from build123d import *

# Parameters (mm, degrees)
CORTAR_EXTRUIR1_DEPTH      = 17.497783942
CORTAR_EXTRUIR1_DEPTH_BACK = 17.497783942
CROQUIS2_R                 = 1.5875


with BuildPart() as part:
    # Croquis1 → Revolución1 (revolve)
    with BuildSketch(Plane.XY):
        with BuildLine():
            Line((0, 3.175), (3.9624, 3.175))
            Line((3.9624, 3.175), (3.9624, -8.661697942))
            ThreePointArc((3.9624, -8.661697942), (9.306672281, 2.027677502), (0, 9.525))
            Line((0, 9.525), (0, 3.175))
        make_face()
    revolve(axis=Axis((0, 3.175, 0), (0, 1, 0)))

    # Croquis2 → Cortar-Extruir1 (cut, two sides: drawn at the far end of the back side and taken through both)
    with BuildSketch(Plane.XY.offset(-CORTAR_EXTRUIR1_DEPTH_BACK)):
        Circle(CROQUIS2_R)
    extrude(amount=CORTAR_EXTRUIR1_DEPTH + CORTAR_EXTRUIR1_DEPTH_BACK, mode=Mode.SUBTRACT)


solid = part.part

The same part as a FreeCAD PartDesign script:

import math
import FreeCAD as App
import Part
import Sketcher
from FreeCAD import Vector
Q = App.Units.Quantity

doc = App.newDocument("Part")
body = doc.addObject("PartDesign::Body", "Body")

sketch1 = body.newObject("Sketcher::SketchObject", "Sketch")
sketch1.AttachmentSupport = (doc.getObject("XY_Plane"), [""])
sketch1.MapMode = "FlatFace"
sketch1.addGeometry([
    Part.LineSegment(Vector(0, 3.2, 0), Vector(4, 3.2, 0)),
    Part.LineSegment(Vector(4, 3.2, 0), Vector(4, -8.7, 0)),
    Part.ArcOfCircle(Part.Circle(Vector(0, 0, 0), Vector(0, 0, 1), 9.5), math.radians(-65), math.radians(90)),
    Part.LineSegment(Vector(0, 9.5, 0), Vector(0, 3.2, 0)),
], False)
sketch1.addConstraint([
    Sketcher.Constraint("Coincident", 0, 2, 1, 1),
    Sketcher.Constraint("Coincident", 1, 2, 2, 1),
    Sketcher.Constraint("Coincident", 2, 2, 3, 1),
    Sketcher.Constraint("Coincident", 3, 2, 0, 1),
    Sketcher.Constraint("Horizontal", 0),
    Sketcher.Constraint("Vertical", 1),
    Sketcher.Constraint("Vertical", 3),
    Sketcher.Constraint("Coincident", 2, 3, -1, 1),
    Sketcher.Constraint("PointOnObject", 2, 2, -2),
    Sketcher.Constraint("Radius", 2, Q("0.375 in")),
    Sketcher.Constraint("DistanceY", 3, 2, 3, 1, Q("0.25 in")),
    Sketcher.Constraint("DistanceX", 0, 1, 0, 2, Q("0.156 in")),
])
revolution = body.newObject("PartDesign::Revolution", "Revolution")
revolution.Profile = sketch1
revolution.ReferenceAxis = (sketch1, ["V_Axis"])
revolution.Angle = 360

sketch2 = body.newObject("Sketcher::SketchObject", "Sketch001")
sketch2.AttachmentSupport = (doc.getObject("XY_Plane"), [""])
sketch2.MapMode = "FlatFace"
sketch2.addGeometry(Part.Circle(Vector(0, 0, 0), Vector(0, 0, 1), 1.6), False)
sketch2.addConstraint([
    Sketcher.Constraint("Coincident", 0, 3, -1, 1),
    Sketcher.Constraint("Diameter", 0, Q("0.125 in")),
])
pocket1 = body.newObject("PartDesign::Pocket", "Pocket")
pocket1.Profile = sketch2
pocket1.Type = "ThroughAll"
pocket1.Midplane = True

doc.recompute()
